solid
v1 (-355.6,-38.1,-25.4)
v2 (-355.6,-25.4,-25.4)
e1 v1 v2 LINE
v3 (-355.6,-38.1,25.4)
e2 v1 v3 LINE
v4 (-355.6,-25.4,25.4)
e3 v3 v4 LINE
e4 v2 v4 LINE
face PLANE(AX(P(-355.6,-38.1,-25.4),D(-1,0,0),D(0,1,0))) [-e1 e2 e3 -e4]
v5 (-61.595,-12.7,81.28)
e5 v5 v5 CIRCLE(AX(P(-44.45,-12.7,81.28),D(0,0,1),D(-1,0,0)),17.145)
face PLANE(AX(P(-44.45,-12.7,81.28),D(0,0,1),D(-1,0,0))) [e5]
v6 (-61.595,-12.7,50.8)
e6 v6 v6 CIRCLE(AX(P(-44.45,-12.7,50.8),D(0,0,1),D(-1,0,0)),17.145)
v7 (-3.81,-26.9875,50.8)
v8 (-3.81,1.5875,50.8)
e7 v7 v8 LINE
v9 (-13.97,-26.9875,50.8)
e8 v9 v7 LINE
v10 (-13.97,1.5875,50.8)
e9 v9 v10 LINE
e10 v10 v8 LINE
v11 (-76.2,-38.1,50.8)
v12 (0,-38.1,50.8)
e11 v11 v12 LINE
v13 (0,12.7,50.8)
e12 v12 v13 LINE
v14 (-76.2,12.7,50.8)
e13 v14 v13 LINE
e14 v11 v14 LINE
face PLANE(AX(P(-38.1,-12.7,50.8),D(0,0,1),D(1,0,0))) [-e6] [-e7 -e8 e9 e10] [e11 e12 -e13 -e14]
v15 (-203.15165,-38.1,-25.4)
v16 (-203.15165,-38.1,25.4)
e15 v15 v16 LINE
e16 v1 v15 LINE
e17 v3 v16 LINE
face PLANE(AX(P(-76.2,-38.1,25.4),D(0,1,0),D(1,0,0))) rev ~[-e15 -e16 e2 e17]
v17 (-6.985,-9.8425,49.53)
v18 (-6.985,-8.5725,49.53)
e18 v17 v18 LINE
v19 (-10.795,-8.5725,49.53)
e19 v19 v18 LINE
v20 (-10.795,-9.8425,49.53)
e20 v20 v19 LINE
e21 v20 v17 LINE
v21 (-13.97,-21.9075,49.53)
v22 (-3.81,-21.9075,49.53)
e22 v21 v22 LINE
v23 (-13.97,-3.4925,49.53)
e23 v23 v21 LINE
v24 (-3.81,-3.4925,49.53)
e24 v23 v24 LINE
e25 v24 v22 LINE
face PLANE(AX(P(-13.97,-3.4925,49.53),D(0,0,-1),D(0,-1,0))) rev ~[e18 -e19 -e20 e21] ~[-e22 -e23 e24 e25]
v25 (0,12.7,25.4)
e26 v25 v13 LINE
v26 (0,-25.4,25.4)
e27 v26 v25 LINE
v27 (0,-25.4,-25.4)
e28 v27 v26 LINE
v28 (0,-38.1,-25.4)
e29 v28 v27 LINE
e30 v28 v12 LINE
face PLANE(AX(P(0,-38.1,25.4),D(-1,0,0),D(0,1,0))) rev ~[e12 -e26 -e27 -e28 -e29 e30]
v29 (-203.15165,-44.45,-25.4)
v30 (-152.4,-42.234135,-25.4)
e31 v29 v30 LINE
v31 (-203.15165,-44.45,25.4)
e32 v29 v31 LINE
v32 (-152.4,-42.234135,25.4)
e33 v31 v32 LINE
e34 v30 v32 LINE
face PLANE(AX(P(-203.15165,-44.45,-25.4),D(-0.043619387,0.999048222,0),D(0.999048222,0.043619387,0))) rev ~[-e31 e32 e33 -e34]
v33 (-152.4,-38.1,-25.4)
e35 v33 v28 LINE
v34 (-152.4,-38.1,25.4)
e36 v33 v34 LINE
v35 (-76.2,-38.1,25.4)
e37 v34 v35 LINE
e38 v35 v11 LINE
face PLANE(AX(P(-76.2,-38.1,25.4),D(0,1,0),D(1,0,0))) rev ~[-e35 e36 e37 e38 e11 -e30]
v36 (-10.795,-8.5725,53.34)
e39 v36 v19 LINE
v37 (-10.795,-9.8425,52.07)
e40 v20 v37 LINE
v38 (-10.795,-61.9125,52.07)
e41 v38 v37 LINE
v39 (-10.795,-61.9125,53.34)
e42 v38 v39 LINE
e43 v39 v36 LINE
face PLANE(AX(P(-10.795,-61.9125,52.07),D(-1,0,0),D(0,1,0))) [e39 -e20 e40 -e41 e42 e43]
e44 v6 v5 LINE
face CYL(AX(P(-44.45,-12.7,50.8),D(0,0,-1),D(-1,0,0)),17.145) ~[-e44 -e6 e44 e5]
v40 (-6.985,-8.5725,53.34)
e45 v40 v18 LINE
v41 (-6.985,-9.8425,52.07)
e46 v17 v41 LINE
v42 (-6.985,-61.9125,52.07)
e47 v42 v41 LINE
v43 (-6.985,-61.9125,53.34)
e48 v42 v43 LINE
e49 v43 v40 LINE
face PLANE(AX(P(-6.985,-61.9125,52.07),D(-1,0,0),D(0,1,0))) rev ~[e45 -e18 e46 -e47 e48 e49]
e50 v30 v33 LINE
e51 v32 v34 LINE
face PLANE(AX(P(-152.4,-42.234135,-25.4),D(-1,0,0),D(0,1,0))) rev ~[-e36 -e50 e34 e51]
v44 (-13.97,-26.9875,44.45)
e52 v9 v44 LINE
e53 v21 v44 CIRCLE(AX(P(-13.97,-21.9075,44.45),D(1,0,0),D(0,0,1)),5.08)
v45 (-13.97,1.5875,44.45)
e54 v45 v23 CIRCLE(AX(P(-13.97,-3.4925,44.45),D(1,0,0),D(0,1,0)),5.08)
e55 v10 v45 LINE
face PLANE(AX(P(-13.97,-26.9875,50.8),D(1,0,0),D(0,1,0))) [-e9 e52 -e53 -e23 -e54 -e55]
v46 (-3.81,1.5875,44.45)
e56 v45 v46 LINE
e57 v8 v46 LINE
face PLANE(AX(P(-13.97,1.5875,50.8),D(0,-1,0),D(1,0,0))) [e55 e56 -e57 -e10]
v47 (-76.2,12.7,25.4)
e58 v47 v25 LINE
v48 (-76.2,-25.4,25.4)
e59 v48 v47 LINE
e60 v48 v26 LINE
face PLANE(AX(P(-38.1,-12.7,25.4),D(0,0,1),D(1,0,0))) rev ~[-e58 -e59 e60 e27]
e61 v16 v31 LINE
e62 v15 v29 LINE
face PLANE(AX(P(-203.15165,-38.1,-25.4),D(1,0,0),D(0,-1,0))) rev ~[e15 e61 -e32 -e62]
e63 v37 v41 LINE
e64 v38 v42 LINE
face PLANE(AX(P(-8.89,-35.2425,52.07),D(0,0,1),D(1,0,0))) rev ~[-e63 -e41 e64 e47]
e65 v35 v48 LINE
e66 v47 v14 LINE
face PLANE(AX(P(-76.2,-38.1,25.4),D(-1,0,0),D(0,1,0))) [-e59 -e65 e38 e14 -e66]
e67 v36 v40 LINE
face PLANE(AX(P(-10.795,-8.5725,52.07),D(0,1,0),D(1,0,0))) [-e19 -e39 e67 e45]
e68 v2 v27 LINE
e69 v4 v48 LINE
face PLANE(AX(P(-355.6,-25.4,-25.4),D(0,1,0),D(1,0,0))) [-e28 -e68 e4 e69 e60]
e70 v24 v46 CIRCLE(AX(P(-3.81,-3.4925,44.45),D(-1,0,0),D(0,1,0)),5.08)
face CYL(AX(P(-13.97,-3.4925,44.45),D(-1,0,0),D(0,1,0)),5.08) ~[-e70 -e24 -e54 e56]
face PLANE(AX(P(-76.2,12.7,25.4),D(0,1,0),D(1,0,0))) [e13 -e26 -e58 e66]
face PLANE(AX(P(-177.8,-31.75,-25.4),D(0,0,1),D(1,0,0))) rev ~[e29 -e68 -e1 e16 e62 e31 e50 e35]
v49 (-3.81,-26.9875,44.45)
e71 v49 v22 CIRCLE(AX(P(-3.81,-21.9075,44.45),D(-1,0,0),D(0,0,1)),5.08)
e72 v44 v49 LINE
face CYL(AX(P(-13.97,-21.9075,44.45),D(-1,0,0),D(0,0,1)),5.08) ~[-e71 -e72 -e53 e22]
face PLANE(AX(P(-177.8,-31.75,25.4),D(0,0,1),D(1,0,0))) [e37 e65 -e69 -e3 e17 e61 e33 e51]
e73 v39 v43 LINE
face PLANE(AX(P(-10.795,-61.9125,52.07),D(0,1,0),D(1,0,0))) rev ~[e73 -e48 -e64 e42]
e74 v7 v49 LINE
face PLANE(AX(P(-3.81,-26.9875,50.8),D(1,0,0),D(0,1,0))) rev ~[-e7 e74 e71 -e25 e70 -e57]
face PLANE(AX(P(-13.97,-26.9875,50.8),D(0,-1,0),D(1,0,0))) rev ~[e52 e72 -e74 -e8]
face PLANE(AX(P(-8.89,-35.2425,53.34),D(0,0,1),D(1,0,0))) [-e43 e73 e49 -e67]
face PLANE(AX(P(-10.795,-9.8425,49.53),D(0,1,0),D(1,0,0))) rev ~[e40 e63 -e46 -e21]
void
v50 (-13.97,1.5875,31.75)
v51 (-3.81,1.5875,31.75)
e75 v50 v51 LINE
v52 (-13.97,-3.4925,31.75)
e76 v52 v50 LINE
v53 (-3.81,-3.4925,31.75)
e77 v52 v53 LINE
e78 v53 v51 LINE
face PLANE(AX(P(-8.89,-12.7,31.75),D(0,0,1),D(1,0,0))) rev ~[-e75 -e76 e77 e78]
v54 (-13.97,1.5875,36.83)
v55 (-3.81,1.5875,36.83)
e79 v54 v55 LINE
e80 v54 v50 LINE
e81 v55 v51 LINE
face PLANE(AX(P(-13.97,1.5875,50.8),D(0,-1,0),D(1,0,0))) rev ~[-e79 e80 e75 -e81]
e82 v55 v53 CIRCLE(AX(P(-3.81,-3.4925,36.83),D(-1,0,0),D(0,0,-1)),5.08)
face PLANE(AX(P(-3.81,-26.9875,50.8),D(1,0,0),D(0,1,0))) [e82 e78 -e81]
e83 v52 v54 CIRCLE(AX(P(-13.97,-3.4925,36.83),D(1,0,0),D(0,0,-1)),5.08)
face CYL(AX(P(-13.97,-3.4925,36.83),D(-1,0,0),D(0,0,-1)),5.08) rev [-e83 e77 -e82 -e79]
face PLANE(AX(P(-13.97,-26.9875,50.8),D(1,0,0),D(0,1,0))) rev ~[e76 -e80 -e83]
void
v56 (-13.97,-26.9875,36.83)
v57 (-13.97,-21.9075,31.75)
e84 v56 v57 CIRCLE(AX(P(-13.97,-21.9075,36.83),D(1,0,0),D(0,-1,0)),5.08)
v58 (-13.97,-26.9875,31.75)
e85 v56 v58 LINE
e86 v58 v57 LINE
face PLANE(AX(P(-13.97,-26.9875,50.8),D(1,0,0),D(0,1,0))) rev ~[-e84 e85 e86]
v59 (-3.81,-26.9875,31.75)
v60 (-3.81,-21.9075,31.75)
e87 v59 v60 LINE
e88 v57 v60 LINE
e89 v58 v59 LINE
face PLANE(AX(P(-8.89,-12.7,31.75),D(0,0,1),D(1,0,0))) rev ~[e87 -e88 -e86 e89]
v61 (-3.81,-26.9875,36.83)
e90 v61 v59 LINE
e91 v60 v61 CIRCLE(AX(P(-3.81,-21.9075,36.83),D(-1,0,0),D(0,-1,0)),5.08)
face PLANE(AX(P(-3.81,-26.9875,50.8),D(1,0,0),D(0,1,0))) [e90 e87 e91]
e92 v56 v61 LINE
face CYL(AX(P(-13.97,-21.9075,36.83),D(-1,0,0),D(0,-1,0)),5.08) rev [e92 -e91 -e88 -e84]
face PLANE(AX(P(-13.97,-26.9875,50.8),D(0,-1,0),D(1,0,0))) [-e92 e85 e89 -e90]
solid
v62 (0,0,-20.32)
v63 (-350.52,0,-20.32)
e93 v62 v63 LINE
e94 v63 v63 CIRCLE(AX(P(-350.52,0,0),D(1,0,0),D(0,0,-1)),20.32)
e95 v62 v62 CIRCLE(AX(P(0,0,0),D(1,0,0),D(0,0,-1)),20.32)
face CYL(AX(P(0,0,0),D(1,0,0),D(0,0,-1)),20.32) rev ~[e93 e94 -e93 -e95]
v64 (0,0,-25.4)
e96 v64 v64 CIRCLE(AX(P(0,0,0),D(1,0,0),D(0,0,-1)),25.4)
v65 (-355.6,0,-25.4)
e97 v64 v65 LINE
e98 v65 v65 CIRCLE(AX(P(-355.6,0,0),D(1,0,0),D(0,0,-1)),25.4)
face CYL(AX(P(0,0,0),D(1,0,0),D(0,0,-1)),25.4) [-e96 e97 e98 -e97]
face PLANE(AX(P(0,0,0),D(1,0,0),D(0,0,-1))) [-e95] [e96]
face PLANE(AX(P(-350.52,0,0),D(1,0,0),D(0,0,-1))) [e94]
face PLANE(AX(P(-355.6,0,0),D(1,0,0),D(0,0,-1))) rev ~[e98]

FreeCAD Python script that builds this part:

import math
import FreeCAD as App
import Part
import Sketcher
from FreeCAD import Vector
Q = App.Units.Quantity


def faces_at(feature, points):
    """Names of the faces that lie closest to the given points."""
    faces = feature.Shape.Faces
    near = lambda p: min(range(len(faces)), key=lambda i: faces[i].distToShape(Part.Vertex(*p))[0])
    return sorted({f"Face{near(p) + 1}" for p in points})


def add_polygon(sketch, points):
    """Adds a closed chain of lines whose ends are joined by coincident constraints."""
    first, n = sketch.GeometryCount, len(points)
    for a, b in zip(points, points[1:] + points[:1]):
        sketch.addGeometry(Part.LineSegment(App.Vector(*a, 0), App.Vector(*b, 0)), False)
    for i in range(n):
        sketch.addConstraint(Sketcher.Constraint("Coincident", first + i, 2, first + (i + 1) % n, 1))

doc = App.newDocument("Part")
body = doc.addObject("PartDesign::Body", "Body")

sketch1 = body.newObject("Sketcher::SketchObject", "Sketch")
sketch1.AttachmentSupport = (doc.getObject("YZ_Plane"), [""])
sketch1.MapMode = "FlatFace"
sketch1.addGeometry(Part.Circle(Vector(0, 0, 0), Vector(0, 0, 1), 25), False)
sketch1.addConstraint([
    Sketcher.Constraint("Coincident", 0, 3, -1, 1),
    Sketcher.Constraint("Diameter", 0, Q("2 in")),
])
pad1 = body.newObject("PartDesign::Pad", "Pad")
pad1.Profile = sketch1
pad1.Length = Q("14 in")
pad1.Reversed = True
doc.recompute()

thickness = body.newObject("PartDesign::Thickness", "Thickness")
thickness.Base = (pad1, faces_at(pad1, [(0, 0, 0)]))
thickness.Value = Q("0.2 in")
thickness.Reversed = True
thickness.Join = "Intersection"
body2 = doc.addObject("PartDesign::Body", "Body001")

sketch2 = body2.newObject("Sketcher::SketchObject", "Sketch001")
sketch2.AttachmentSupport = (doc.getObject("XY_Plane001"), [""])
sketch2.MapMode = "FlatFace"
add_polygon(sketch2, [(-356, -25), (-356, -38), (0, -38), (0, -25)])
sketch2.addConstraint([
    Sketcher.Constraint("Vertical", 0),
    Sketcher.Constraint("Horizontal", 1),
    Sketcher.Constraint("Vertical", 2),
    Sketcher.Constraint("Horizontal", 3),
    Sketcher.Constraint("PointOnObject", 1, 2, -2),
    Sketcher.Constraint("DistanceX", 1, 1, 1, 2, Q("14 in")),
    Sketcher.Constraint("DistanceY", 0, 2, 0, 1, Q("0.5 in")),
    Sketcher.Constraint("DistanceY", 2, 2, -1, 1, Q("1 in")),
])
pad2 = body2.newObject("PartDesign::Pad", "Pad001")
pad2.Profile = sketch2
pad2.Type = "TwoLengths"
pad2.Length = Q("1 in")
pad2.Length2 = Q("1 in")

sketch3 = body2.newObject("Sketcher::SketchObject", "Sketch002")
sketch3.AttachmentSupport = (doc.getObject("XY_Plane001"), [""])
sketch3.MapMode = "FlatFace"
sketch3.AttachmentOffset = App.Placement(Vector(0, 0, 1 * 25.4), App.Rotation())
add_polygon(sketch3, [(-76, 13), (-76, -38), (0, -38), (0, 13)])
sketch3.addConstraint([
    Sketcher.Constraint("Vertical", 0),
    Sketcher.Constraint("Horizontal", 1),
    Sketcher.Constraint("Vertical", 2),
    Sketcher.Constraint("Horizontal", 3),
    Sketcher.Constraint("PointOnObject", 1, 2, -2),
    Sketcher.Constraint("DistanceX", 1, 1, 1, 2, Q("3 in")),
    Sketcher.Constraint("DistanceY", 0, 2, 0, 1, Q("2 in")),
    Sketcher.Constraint("DistanceY", 0, 2, -1, 1, Q("1.5 in")),
])
pad3 = body2.newObject("PartDesign::Pad", "Pad002")
pad3.Profile = sketch3
pad3.Length = Q("1 in")

sketch4 = body2.newObject("Sketcher::SketchObject", "Sketch003")
sketch4.AttachmentSupport = (doc.getObject("XY_Plane001"), [""])
sketch4.MapMode = "FlatFace"
sketch4.AttachmentOffset = App.Placement(Vector(0, 0, 2 * 25.4), App.Rotation())
add_polygon(sketch4, [(-14, 2), (-14, -27), (-4, -27), (-4, 2)])
sketch4.addConstraint([
    Sketcher.Constraint("Vertical", 0),
    Sketcher.Constraint("Horizontal", 1),
    Sketcher.Constraint("Vertical", 2),
    Sketcher.Constraint("Horizontal", 3),
    Sketcher.Constraint("DistanceX", 1, 1, 1, 2, Q("0.4 in")),
    Sketcher.Constraint("DistanceY", 0, 2, 0, 1, Q("1.125 in")),
    Sketcher.Constraint("DistanceX", 0, 2, -1, 1, Q("0.55 in")),
    Sketcher.Constraint("DistanceY", 0, 2, -1, 1, Q("1.0625 in")),
])
pocket1 = body2.newObject("PartDesign::Pocket", "Pocket")
pocket1.Profile = sketch4
pocket1.Length = Q("0.75 in")

sketch5 = body2.newObject("Sketcher::SketchObject", "Sketch004")
sketch5.AttachmentSupport = (doc.getObject("YZ_Plane001"), [""])
sketch5.MapMode = "FlatFace"
sketch5.AttachmentOffset = App.Placement(Vector(0, 0, -0.55 * 25.4), App.Rotation())
sketch5.addGeometry([
    Part.LineSegment(Vector(-27, 44, 0), Vector(-27, 37, 0)),
    Part.ArcOfCircle(Part.Circle(Vector(-22, 37, 0), Vector(0, 0, 1), 5), math.radians(-180), math.radians(-90)),
    Part.LineSegment(Vector(-22, 32, 0), Vector(-3, 32, 0)),
    Part.ArcOfCircle(Part.Circle(Vector(-3, 37, 0), Vector(0, 0, 1), 5), math.radians(-90), math.radians(0)),
    Part.LineSegment(Vector(2, 37, 0), Vector(2, 44, 0)),
    Part.ArcOfCircle(Part.Circle(Vector(-3, 44, 0), Vector(0, 0, 1), 5), math.radians(0), math.radians(90)),
    Part.LineSegment(Vector(-3, 50, 0), Vector(-22, 50, 0)),
    Part.ArcOfCircle(Part.Circle(Vector(-22, 44, 0), Vector(0, 0, 1), 5), math.radians(90), math.radians(180)),
], False)
sketch5.addConstraint([
    Sketcher.Constraint("Tangent", 0, 2, 1, 1),
    Sketcher.Constraint("Tangent", 1, 2, 2, 1),
    Sketcher.Constraint("Tangent", 2, 2, 3, 1),
    Sketcher.Constraint("Tangent", 3, 2, 4, 1),
    Sketcher.Constraint("Tangent", 4, 2, 5, 1),
    Sketcher.Constraint("Tangent", 5, 2, 6, 1),
    Sketcher.Constraint("Tangent", 6, 2, 7, 1),
    Sketcher.Constraint("Tangent", 7, 2, 0, 1),
    Sketcher.Constraint("Vertical", 0),
    Sketcher.Constraint("Horizontal", 2),
    Sketcher.Constraint("Vertical", 4),
    Sketcher.Constraint("Horizontal", 6),
    Sketcher.Constraint("Equal", 1, 3),
    Sketcher.Constraint("Equal", 3, 5),
    Sketcher.Constraint("Equal", 5, 7),
    Sketcher.Constraint("Radius", 1, Q("0.2 in")),
    Sketcher.Constraint("DistanceY", 0, 2, 0, 1, Q("0.3 in")),
    Sketcher.Constraint("DistanceX", 2, 1, 2, 2, Q("0.725 in")),
    Sketcher.Constraint("DistanceY", -1, 1, 1, 3, Q("1.45 in")),
    Sketcher.Constraint("DistanceX", 0, 2, -1, 1, Q("1.0625 in")),
])
pad4 = body2.newObject("PartDesign::Pad", "Pad003")
pad4.Profile = sketch5
pad4.Type = "UpToFirst"

sketch6 = body2.newObject("Sketcher::SketchObject", "Sketch005")
sketch6.AttachmentSupport = (doc.getObject("XY_Plane001"), [""])
sketch6.MapMode = "FlatFace"
sketch6.AttachmentOffset = App.Placement(Vector(0, 0, 1.95 * 25.4), App.Rotation())
add_polygon(sketch6, [(-10.8, -8.6), (-10.8, -9.8), (-7, -9.8), (-7, -8.6)])
sketch6.addConstraint([
    Sketcher.Constraint("Vertical", 0),
    Sketcher.Constraint("Horizontal", 1),
    Sketcher.Constraint("Vertical", 2),
    Sketcher.Constraint("Horizontal", 3),
    Sketcher.Constraint("DistanceX", 1, 1, 1, 2, Q("0.15 in")),
    Sketcher.Constraint("DistanceY", 0, 2, 0, 1, Q("0.05 in")),
    Sketcher.Constraint("DistanceX", 0, 2, -1, 1, Q("0.425 in")),
    Sketcher.Constraint("DistanceY", 0, 2, -1, 1, Q("0.3875 in")),
])
pad5 = body2.newObject("PartDesign::Pad", "Pad004")
pad5.Profile = sketch6
pad5.Length = Q("0.1 in")

sketch7 = body2.newObject("Sketcher::SketchObject", "Sketch006")
sketch7.AttachmentSupport = (doc.getObject("XY_Plane001"), [""])
sketch7.MapMode = "FlatFace"
sketch7.AttachmentOffset = App.Placement(Vector(0, 0, 2.05 * 25.4), App.Rotation())
add_polygon(sketch7, [(-10.8, -8.6), (-10.8, -61.9), (-7, -61.9), (-7, -8.6)])
sketch7.addConstraint([
    Sketcher.Constraint("Vertical", 0),
    Sketcher.Constraint("Horizontal", 1),
    Sketcher.Constraint("Vertical", 2),
    Sketcher.Constraint("Horizontal", 3),
    Sketcher.Constraint("DistanceY", 0, 2, 0, 1, Q("2.1 in")),
    Sketcher.Constraint("DistanceX", 1, 1, 1, 2, Q("0.15 in")),
    Sketcher.Constraint("DistanceX", 0, 2, -1, 1, Q("0.425 in")),
    Sketcher.Constraint("DistanceY", 0, 2, -1, 1, Q("2.4375 in")),
])
pad6 = body2.newObject("PartDesign::Pad", "Pad005")
pad6.Profile = sketch7
pad6.Length = Q("0.05 in")

sketch8 = body2.newObject("Sketcher::SketchObject", "Sketch007")
sketch8.AttachmentSupport = (doc.getObject("XY_Plane001"), [""])
sketch8.MapMode = "FlatFace"
sketch8.AttachmentOffset = App.Placement(Vector(0, 0, 2 * 25.4), App.Rotation())
sketch8.addGeometry(Part.Circle(Vector(-44, -13, 0), Vector(0, 0, 1), 17), False)
sketch8.addConstraint([
    Sketcher.Constraint("Diameter", 0, Q("1.35 in")),
    Sketcher.Constraint("DistanceY", 0, 3, -1, 1, Q("0.5 in")),
    Sketcher.Constraint("DistanceX", 0, 3, -1, 1, Q("1.75 in")),
])
pad7 = body2.newObject("PartDesign::Pad", "Pad006")
pad7.Profile = sketch8
pad7.Length = Q("1.2 in")

sketch9 = body2.newObject("Sketcher::SketchObject", "Sketch008")
sketch9.AttachmentSupport = (doc.getObject("XY_Plane001"), [""])
sketch9.MapMode = "FlatFace"
sketch9.AttachmentOffset = App.Placement(Vector(0, 0, -1 * 25.4), App.Rotation())
add_polygon(sketch9, [(-203.2, -44.5), (-152.4, -42.2), (-152.4, -38.1), (-203.2, -38.1)])
sketch9.addConstraint([
    Sketcher.Constraint("Vertical", 1),
    Sketcher.Constraint("Horizontal", 2),
    Sketcher.Constraint("Vertical", 3),
    Sketcher.Constraint("Distance", 0, Q("2 in")),
    Sketcher.Constraint("DistanceX", 0, 2, -1, 1, Q("6 in")),
    Sketcher.Constraint("DistanceY", 3, 2, 3, 1, Q("0.25 in")),
    Sketcher.Constraint("DistanceY", 1, 2, -1, 1, Q("1.5 in")),
    Sketcher.Constraint("Angle", 0, Q("2.5 deg")),
])
pad8 = body2.newObject("PartDesign::Pad", "Pad007")
pad8.Profile = sketch9
pad8.Length = Q("2 in")

doc.recompute()
